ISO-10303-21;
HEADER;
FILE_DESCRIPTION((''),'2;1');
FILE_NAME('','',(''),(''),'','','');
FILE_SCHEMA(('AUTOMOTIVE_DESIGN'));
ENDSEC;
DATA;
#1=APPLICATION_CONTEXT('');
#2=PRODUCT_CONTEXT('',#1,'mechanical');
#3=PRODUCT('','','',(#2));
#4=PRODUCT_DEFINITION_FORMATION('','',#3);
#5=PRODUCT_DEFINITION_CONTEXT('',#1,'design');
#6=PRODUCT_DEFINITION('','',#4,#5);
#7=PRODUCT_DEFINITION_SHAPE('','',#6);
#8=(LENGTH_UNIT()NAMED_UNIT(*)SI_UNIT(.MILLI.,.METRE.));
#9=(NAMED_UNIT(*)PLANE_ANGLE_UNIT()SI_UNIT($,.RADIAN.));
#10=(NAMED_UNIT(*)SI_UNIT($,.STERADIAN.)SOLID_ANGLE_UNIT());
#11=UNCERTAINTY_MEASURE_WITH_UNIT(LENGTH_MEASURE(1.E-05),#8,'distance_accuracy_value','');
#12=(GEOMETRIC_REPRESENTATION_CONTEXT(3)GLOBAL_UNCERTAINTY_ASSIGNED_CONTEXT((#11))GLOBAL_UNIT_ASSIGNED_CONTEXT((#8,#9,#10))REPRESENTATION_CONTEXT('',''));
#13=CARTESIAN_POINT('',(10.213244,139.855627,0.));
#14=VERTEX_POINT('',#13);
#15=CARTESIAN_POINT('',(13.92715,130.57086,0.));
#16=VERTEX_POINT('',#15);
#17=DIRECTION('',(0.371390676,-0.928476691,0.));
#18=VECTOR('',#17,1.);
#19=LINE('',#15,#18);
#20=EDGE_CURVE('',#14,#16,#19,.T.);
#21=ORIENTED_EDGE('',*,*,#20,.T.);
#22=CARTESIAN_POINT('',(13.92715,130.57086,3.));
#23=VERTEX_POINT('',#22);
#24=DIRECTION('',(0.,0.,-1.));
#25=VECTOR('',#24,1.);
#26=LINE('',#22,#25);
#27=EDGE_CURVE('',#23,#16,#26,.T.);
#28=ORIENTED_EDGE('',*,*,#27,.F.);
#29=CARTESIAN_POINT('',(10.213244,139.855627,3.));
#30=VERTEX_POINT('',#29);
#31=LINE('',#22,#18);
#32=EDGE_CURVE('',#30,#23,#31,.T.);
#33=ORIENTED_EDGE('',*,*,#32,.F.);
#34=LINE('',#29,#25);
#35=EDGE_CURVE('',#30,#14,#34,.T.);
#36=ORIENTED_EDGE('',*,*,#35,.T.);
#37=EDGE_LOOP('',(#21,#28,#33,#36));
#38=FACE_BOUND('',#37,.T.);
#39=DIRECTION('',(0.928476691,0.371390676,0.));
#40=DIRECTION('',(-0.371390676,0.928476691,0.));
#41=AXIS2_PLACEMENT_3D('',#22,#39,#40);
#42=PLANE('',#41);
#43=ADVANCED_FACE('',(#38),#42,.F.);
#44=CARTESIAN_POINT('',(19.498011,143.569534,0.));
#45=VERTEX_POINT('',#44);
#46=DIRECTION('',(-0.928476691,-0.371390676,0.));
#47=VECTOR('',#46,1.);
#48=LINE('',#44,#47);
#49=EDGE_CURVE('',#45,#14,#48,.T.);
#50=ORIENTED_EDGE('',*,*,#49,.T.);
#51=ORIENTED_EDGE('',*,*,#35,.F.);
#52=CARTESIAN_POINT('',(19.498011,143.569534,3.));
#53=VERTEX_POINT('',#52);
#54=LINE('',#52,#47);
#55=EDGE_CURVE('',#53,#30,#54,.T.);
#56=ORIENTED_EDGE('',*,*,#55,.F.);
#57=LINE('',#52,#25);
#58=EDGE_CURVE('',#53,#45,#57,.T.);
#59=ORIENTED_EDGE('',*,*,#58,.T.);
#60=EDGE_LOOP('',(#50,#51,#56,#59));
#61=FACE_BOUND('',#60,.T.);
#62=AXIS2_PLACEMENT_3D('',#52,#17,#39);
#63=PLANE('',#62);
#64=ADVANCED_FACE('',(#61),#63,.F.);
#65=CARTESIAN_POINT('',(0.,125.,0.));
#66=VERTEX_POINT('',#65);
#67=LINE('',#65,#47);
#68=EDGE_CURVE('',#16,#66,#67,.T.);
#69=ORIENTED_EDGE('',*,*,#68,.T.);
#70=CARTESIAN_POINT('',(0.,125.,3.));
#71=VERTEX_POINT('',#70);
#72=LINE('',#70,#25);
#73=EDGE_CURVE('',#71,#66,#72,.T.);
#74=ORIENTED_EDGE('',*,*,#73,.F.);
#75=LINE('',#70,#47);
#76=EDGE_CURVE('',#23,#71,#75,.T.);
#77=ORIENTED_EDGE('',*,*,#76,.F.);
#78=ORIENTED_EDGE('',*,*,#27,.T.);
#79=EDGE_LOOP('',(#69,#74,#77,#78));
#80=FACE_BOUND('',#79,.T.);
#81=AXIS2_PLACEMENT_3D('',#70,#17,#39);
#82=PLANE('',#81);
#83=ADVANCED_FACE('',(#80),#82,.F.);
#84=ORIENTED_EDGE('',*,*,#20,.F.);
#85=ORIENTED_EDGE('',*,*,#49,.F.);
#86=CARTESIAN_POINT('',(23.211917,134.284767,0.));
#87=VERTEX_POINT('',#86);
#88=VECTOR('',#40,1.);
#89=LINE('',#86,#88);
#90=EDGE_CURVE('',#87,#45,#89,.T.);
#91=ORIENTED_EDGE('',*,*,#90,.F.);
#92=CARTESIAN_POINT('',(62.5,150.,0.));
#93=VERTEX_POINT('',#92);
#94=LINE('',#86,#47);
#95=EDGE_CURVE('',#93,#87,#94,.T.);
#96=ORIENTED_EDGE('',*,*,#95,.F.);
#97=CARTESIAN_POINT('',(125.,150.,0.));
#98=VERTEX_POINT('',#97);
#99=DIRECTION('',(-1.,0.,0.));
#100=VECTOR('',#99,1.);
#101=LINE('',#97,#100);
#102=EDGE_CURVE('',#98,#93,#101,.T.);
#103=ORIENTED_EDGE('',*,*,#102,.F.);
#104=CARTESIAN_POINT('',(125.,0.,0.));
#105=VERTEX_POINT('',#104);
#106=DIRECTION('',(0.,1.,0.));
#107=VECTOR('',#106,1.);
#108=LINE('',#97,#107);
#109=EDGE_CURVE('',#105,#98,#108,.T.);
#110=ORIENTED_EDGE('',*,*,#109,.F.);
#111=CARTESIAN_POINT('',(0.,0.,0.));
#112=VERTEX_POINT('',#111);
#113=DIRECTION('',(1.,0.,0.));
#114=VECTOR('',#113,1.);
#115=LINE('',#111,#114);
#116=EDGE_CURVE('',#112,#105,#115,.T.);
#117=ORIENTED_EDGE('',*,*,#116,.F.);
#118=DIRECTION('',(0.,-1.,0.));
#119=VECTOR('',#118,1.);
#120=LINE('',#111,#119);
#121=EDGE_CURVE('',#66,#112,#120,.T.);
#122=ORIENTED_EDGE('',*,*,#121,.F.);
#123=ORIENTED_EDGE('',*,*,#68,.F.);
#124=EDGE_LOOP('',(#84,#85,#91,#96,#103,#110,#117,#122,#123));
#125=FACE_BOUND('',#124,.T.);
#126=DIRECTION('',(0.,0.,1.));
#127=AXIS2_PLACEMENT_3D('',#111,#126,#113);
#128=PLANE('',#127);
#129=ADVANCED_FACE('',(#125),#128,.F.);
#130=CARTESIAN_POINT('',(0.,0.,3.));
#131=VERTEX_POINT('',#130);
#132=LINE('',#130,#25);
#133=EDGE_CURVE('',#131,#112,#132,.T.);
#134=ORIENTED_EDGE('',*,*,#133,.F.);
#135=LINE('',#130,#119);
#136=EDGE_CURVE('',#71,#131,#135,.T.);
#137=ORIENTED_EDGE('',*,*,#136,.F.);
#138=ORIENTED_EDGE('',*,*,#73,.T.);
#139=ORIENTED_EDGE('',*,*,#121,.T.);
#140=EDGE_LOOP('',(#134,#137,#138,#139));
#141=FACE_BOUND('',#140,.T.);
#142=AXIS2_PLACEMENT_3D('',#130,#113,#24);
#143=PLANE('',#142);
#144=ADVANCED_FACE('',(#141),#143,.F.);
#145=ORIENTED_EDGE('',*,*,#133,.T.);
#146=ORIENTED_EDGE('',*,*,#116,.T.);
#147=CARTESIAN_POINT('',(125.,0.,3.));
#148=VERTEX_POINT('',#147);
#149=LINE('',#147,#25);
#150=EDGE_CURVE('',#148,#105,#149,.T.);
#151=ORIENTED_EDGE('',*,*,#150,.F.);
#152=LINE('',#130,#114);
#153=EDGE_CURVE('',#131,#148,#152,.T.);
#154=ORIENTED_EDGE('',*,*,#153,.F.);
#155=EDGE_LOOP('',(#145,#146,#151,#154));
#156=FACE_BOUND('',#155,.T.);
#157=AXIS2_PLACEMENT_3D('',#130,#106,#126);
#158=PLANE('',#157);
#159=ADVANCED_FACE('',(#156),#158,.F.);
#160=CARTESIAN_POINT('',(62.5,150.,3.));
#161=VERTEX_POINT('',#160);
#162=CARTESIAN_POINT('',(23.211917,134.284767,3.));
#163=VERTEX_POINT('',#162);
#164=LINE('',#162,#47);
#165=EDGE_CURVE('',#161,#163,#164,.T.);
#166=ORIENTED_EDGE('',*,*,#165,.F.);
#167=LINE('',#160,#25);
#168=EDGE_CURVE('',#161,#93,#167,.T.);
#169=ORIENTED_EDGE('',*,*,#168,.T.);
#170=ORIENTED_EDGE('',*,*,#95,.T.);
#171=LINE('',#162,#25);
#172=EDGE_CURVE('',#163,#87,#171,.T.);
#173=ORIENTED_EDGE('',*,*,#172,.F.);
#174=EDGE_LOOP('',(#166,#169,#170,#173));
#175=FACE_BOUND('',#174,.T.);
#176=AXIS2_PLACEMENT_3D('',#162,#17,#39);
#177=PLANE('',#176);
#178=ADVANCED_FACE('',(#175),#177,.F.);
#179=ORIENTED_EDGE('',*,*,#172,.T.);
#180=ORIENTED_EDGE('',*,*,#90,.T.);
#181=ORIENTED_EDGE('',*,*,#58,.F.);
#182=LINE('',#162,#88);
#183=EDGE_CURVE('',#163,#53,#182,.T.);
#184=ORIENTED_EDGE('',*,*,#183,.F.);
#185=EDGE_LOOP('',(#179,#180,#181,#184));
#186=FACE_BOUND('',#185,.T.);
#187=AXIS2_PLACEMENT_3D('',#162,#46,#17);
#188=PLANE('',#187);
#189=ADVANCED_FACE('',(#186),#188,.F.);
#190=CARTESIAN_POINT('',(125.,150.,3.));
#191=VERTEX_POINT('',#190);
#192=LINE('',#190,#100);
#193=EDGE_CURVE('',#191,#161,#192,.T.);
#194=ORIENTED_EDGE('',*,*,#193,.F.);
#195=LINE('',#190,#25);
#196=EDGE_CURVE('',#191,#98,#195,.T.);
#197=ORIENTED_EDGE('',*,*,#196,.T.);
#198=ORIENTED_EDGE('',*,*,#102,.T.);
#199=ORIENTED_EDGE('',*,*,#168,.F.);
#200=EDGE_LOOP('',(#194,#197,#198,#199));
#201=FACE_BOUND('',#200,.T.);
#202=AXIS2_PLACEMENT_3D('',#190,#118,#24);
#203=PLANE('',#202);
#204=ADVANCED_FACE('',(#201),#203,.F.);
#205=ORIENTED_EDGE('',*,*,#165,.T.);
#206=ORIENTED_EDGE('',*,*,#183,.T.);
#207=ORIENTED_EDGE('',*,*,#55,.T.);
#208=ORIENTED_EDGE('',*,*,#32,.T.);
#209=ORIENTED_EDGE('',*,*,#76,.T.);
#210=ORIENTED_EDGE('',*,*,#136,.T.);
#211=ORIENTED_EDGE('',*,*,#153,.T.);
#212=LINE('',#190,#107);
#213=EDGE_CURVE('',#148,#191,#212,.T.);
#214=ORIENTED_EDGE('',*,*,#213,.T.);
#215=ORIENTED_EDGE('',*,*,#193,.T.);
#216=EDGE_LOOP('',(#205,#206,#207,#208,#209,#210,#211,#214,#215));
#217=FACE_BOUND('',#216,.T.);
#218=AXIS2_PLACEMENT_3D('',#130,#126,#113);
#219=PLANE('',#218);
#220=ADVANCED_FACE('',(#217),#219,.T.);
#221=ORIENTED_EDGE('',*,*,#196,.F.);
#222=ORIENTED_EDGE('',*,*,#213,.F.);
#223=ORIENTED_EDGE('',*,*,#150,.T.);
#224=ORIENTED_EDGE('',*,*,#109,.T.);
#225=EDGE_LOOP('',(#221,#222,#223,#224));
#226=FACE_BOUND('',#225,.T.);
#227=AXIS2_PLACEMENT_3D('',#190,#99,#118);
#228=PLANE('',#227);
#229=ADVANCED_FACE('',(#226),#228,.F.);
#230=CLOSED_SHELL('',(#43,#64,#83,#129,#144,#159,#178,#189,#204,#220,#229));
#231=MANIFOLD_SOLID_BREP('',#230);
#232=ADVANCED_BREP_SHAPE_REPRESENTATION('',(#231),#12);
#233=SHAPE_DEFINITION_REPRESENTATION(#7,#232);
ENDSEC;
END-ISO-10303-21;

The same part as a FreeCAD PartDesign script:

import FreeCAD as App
import Part
import Sketcher
from FreeCAD import Vector

doc = App.newDocument("Part")
body = doc.addObject("PartDesign::Body", "Body")

# Sketch on XY plane
sketch1 = body.newObject("Sketcher::SketchObject", "Sketch")
sketch1.AttachmentSupport = (doc.getObject("XY_Plane"), [""])
sketch1.MapMode = "FlatFace"
sketch1.addGeometry(Part.LineSegment(Vector(0, 0, 0), Vector(125, 0, 0)), False)
sketch1.addGeometry(Part.LineSegment(Vector(125, 0, 0), Vector(125, 150, 0)), False)
sketch1.addGeometry(Part.LineSegment(Vector(125, 150, 0), Vector(62, 150, 0)), False)
sketch1.addGeometry(Part.LineSegment(Vector(62, 150, 0), Vector(23, 134, 0)), False)
sketch1.addGeometry(Part.LineSegment(Vector(23, 134, 0), Vector(19, 144, 0)), False)
sketch1.addGeometry(Part.LineSegment(Vector(19, 144, 0), Vector(10, 140, 0)), False)
sketch1.addGeometry(Part.LineSegment(Vector(10, 140, 0), Vector(14, 131, 0)), False)
sketch1.addGeometry(Part.LineSegment(Vector(14, 131, 0), Vector(0, 125, 0)), False)
sketch1.addGeometry(Part.LineSegment(Vector(0, 125, 0), Vector(0, 0, 0)), False)
sketch1.addConstraint(Sketcher.Constraint("Coincident", 0, 2, 1, 1))
sketch1.addConstraint(Sketcher.Constraint("Coincident", 1, 2, 2, 1))
sketch1.addConstraint(Sketcher.Constraint("Coincident", 2, 2, 3, 1))
sketch1.addConstraint(Sketcher.Constraint("Coincident", 3, 2, 4, 1))
sketch1.addConstraint(Sketcher.Constraint("Coincident", 4, 2, 5, 1))
sketch1.addConstraint(Sketcher.Constraint("Coincident", 5, 2, 6, 1))
sketch1.addConstraint(Sketcher.Constraint("Coincident", 6, 2, 7, 1))
sketch1.addConstraint(Sketcher.Constraint("Coincident", 7, 2, 8, 1))
sketch1.addConstraint(Sketcher.Constraint("Coincident", 8, 2, 0, 1))
sketch1.addConstraint(Sketcher.Constraint("Horizontal", 0))
sketch1.addConstraint(Sketcher.Constraint("Vertical", 1))
sketch1.addConstraint(Sketcher.Constraint("Horizontal", 2))
sketch1.addConstraint(Sketcher.Constraint("Vertical", 8))
sketch1.addConstraint(Sketcher.Constraint("Coincident", 8, 2, -1, 1))
sketch1.addConstraint(Sketcher.Constraint("Perpendicular", 3, 4))
sketch1.addConstraint(Sketcher.Constraint("Perpendicular", 4, 5))
sketch1.addConstraint(Sketcher.Constraint("Perpendicular", 5, 6))
sketch1.addConstraint(Sketcher.Constraint("Perpendicular", 6, 7))
sketch1.addConstraint(Sketcher.Constraint("Equal", 0, 8))
sketch1.addConstraint(Sketcher.Constraint("Equal", 4, 5))
sketch1.addConstraint(Sketcher.Constraint("Equal", 5, 6))
sketch1.addConstraint(Sketcher.Constraint("DistanceX", 0, 1, 0, 2, 125.0))
sketch1.addConstraint(Sketcher.Constraint("DistanceY", 1, 1, 1, 2, 150.0))
sketch1.addConstraint(Sketcher.Constraint("Distance", 4, 10.0))
sketch1.addConstraint(Sketcher.Constraint("Distance", 7, 15.0))
sketch1.addConstraint(Sketcher.Constraint("DistanceX", 2, 2, 2, 1, 62.5))
pad1 = body.newObject("PartDesign::Pad", "Pad")
pad1.Profile = sketch1
pad1.Length = 3

doc.recompute()
